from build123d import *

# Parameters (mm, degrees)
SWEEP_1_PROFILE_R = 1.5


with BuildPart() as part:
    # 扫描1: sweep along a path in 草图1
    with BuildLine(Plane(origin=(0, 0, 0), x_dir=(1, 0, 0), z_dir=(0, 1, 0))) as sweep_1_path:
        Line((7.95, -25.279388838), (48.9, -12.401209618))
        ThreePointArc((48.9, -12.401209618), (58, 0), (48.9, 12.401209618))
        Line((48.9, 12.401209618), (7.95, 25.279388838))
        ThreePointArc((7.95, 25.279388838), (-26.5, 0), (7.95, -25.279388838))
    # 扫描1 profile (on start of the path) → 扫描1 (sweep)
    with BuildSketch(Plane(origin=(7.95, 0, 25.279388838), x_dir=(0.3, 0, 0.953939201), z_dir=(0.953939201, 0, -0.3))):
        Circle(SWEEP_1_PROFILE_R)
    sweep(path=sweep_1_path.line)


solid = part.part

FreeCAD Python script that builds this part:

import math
import FreeCAD as App
import Part
import Sketcher

V = App.Vector

doc = App.newDocument("Part")
body = doc.addObject("PartDesign::Body", "Body")

sketch1 = doc.addObject("Sketcher::SketchObject", "Sketch")
body.addObject(sketch1)
sketch1.Placement = App.Placement(V(7.95, 0, 25.279389), App.Rotation(V(0.3, 0, 0.953939201), V(0, -0.999999999, 0), V(0.953939201, 0, -0.3), "ZXY"))
sketch1.addGeometry(Part.Circle(V(0, 0, 0), V(0, 0, 1), 1.5), False)
sketch1.addConstraint([
    Sketcher.Constraint("Coincident", 0, 3, -1, 1),
    Sketcher.Constraint("Diameter", 0, 3.0),
])

sketch2 = doc.addObject("Sketcher::SketchObject", "Sketch001")
body.addObject(sketch2)
sketch2.AttachmentSupport = (doc.XZ_Plane, [""])
sketch2.MapMode = "FlatFace"
sketch2.addGeometry([
    Part.LineSegment(V(8, 25, 0), V(49, 12, 0)),
    Part.ArcOfCircle(Part.Circle(V(45, 0, 0), V(0, 0, 1), 13), math.radians(-73), math.radians(73)),
    Part.LineSegment(V(49, -12, 0), V(8, -25, 0)),
    Part.ArcOfCircle(Part.Circle(V(0, 0, 0), V(0, 0, 1), 26), math.radians(73), math.radians(287)),
], False)
sketch2.addConstraint([
    Sketcher.Constraint("Tangent", 0, 2, 1, 2),
    Sketcher.Constraint("Tangent", 1, 1, 2, 1),
    Sketcher.Constraint("Tangent", 2, 2, 3, 2),
    Sketcher.Constraint("Tangent", 3, 1, 0, 1),
    Sketcher.Constraint("Coincident", 3, 3, -1, 1),
    Sketcher.Constraint("PointOnObject", 1, 3, -1),
    Sketcher.Constraint("Radius", 1, 13.0),
    Sketcher.Constraint("Radius", 3, 26.5),
    Sketcher.Constraint("DistanceX", -1, 1, 1, 3, 45.0),
])
doc.recompute()

additivepipe = doc.addObject("PartDesign::AdditivePipe", "AdditivePipe")
body.addObject(additivepipe)
additivepipe.Profile = sketch1
additivepipe.Spine = (sketch2, ["Edge1", "Edge2", "Edge3", "Edge4"])

doc.recompute()
